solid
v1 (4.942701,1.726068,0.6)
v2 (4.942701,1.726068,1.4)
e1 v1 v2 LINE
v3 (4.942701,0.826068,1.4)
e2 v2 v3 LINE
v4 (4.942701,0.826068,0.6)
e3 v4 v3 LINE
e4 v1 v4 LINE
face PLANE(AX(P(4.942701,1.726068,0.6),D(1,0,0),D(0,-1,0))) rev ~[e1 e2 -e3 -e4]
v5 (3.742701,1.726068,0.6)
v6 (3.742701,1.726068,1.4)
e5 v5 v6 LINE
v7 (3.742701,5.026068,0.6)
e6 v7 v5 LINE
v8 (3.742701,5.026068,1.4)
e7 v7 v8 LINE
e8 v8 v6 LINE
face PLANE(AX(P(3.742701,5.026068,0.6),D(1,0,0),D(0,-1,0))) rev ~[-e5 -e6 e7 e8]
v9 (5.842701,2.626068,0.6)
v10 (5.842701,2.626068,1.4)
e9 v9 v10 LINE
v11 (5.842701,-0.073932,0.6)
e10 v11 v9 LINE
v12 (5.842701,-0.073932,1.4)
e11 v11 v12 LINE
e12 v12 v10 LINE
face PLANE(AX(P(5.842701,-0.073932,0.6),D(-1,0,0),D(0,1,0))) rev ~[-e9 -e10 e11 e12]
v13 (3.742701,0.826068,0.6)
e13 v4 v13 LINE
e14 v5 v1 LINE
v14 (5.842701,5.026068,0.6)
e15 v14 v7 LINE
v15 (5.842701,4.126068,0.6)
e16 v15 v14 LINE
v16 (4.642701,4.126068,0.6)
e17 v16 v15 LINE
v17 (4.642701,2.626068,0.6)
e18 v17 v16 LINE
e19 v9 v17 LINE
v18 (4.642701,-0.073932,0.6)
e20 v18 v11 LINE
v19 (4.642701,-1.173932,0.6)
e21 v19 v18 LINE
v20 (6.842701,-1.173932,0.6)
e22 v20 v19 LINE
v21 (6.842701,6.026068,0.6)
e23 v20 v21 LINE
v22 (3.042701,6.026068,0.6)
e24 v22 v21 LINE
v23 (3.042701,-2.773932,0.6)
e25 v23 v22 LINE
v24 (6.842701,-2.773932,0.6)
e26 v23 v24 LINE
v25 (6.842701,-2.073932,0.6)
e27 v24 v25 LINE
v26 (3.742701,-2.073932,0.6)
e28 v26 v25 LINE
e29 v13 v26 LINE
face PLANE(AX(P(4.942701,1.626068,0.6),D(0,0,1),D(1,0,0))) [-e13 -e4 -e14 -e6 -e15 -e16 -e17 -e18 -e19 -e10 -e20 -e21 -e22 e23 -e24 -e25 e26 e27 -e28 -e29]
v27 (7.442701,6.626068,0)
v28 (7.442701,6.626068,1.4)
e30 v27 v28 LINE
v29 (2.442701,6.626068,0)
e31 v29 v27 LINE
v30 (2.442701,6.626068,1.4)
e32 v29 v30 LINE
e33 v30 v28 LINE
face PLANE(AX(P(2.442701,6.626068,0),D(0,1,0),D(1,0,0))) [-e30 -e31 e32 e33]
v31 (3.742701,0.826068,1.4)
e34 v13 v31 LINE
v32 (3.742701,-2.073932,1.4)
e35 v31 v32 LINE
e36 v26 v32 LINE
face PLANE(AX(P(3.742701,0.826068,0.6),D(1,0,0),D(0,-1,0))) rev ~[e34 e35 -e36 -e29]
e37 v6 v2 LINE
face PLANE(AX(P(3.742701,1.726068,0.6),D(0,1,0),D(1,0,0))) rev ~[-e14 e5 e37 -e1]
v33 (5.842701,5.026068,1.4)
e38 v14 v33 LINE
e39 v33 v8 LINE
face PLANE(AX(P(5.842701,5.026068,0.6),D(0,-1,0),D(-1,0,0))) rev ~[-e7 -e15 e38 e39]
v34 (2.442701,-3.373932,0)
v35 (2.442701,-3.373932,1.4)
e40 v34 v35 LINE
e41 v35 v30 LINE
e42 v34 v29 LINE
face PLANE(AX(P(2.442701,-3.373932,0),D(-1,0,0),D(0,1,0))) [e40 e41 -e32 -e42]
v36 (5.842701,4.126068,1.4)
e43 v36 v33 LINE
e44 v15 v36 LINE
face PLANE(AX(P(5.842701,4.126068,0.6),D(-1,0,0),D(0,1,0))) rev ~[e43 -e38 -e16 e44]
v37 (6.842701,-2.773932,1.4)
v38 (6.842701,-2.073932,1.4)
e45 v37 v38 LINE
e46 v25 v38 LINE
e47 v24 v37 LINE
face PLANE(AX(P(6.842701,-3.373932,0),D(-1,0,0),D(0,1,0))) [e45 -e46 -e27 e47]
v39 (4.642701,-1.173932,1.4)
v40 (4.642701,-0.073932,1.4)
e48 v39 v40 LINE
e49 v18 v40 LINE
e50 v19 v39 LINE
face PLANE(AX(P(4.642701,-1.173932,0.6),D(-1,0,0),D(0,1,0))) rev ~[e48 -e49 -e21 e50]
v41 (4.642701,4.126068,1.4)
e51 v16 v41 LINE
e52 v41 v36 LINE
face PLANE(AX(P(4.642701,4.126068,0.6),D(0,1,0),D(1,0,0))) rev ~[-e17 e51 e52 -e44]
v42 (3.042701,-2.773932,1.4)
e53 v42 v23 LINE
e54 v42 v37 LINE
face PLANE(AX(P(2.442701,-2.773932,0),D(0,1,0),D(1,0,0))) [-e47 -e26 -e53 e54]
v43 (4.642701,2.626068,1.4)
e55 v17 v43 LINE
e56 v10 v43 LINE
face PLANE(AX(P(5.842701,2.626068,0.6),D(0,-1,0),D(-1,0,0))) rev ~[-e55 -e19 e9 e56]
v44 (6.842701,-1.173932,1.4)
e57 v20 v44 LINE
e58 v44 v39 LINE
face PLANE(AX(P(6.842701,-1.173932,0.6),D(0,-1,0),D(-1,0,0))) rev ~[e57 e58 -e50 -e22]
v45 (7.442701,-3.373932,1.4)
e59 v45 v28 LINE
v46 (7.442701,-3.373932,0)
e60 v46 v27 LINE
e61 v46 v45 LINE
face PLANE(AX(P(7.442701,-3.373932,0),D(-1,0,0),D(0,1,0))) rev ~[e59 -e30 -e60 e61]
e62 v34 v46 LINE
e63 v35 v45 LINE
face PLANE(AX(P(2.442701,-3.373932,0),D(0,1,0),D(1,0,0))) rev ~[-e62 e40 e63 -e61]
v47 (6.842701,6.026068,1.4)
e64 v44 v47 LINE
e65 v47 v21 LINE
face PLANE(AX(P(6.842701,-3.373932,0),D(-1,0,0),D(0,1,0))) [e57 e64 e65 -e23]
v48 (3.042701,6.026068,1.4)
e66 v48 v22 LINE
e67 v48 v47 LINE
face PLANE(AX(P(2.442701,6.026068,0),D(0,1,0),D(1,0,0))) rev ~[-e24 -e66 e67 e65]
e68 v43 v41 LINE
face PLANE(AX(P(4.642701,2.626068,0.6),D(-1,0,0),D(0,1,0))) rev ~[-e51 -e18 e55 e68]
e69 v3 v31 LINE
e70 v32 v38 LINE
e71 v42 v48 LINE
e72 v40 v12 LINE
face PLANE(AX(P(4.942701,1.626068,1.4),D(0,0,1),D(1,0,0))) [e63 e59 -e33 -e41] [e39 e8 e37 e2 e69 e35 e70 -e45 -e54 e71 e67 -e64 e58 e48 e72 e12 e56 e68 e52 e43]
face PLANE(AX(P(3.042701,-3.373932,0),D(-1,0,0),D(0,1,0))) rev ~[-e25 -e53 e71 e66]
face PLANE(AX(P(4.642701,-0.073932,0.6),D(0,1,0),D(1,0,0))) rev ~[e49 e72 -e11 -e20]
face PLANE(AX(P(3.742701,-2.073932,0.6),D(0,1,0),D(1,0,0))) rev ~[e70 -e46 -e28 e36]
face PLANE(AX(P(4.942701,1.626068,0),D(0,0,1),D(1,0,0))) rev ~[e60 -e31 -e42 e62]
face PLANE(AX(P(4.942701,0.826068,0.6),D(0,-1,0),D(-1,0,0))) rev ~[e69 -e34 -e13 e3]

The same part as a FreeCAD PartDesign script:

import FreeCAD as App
import Part
import Sketcher
from FreeCAD import Vector


def faces_at(feature, points):
    """Names of the faces that lie closest to the given points."""
    faces = feature.Shape.Faces
    near = lambda p: min(range(len(faces)), key=lambda i: faces[i].distToShape(Part.Vertex(*p))[0])
    return sorted({f"Face{near(p) + 1}" for p in points})


def add_polygon(sketch, points):
    """Adds a closed chain of lines whose ends are joined by coincident constraints."""
    first, n = sketch.GeometryCount, len(points)
    for a, b in zip(points, points[1:] + points[:1]):
        sketch.addGeometry(Part.LineSegment(App.Vector(*a, 0), App.Vector(*b, 0)), False)
    for i in range(n):
        sketch.addConstraint(Sketcher.Constraint("Coincident", first + i, 2, first + (i + 1) % n, 1))

doc = App.newDocument("Part")
body = doc.addObject("PartDesign::Body", "Body")

sketch1 = body.newObject("Sketcher::SketchObject", "Sketch")
sketch1.AttachmentSupport = (doc.getObject("XY_Plane"), [""])
sketch1.MapMode = "FlatFace"
add_polygon(sketch1, [(2, 7), (2, -3), (7, -3), (7, 7)])
sketch1.addConstraint(Sketcher.Constraint("Vertical", 0))
sketch1.addConstraint(Sketcher.Constraint("Horizontal", 1))
sketch1.addConstraint(Sketcher.Constraint("Vertical", 2))
sketch1.addConstraint(Sketcher.Constraint("Horizontal", 3))
sketch1.addConstraint(Sketcher.Constraint("DistanceX", 1, 1, 1, 2, 5.0))
sketch1.addConstraint(Sketcher.Constraint("DistanceY", 0, 2, 0, 1, 10.0))
sketch1.addConstraint(Sketcher.Constraint("DistanceX", -1, 1, 0, 2, 2.442701))
sketch1.addConstraint(Sketcher.Constraint("DistanceY", 0, 2, -1, 1, 3.373932))
pad1 = body.newObject("PartDesign::Pad", "Pad")
pad1.Profile = sketch1
pad1.Length = 1.4
doc.recompute()

thickness = body.newObject("PartDesign::Thickness", "Thickness")
thickness.Base = (pad1, faces_at(pad1, [(4.943, 1.626, 1.4)]))
thickness.Value = 0.6
thickness.Reversed = True
thickness.Join = "Arc"

sketch2 = body.newObject("Sketcher::SketchObject", "Sketch001")
sketch2.AttachmentSupport = (doc.getObject("XY_Plane"), [""])
sketch2.MapMode = "FlatFace"
sketch2.AttachmentOffset = App.Placement(Vector(0, 0, 0.6), App.Rotation())
add_polygon(sketch2, [(6.8, -2.1), (6.8, -1.2), (4.6, -1.2), (4.6, -0.1), (5.8, -0.1), (5.8, 2.6), (4.6, 2.6), (4.6, 4.1), (5.8, 4.1), (5.8, 5), (3.7, 5), (3.7, 1.7), (4.9, 1.7), (4.9, 0.8), (3.7, 0.8), (3.7, -2.1)])
sketch2.addConstraint(Sketcher.Constraint("Vertical", 0))
sketch2.addConstraint(Sketcher.Constraint("Horizontal", 1))
sketch2.addConstraint(Sketcher.Constraint("Vertical", 2))
sketch2.addConstraint(Sketcher.Constraint("Horizontal", 3))
sketch2.addConstraint(Sketcher.Constraint("Vertical", 4))
sketch2.addConstraint(Sketcher.Constraint("Horizontal", 5))
sketch2.addConstraint(Sketcher.Constraint("Vertical", 6))
sketch2.addConstraint(Sketcher.Constraint("Horizontal", 7))
sketch2.addConstraint(Sketcher.Constraint("Vertical", 8))
sketch2.addConstraint(Sketcher.Constraint("Horizontal", 9))
sketch2.addConstraint(Sketcher.Constraint("Vertical", 10))
sketch2.addConstraint(Sketcher.Constraint("Horizontal", 11))
sketch2.addConstraint(Sketcher.Constraint("Vertical", 12))
sketch2.addConstraint(Sketcher.Constraint("Horizontal", 13))
sketch2.addConstraint(Sketcher.Constraint("Vertical", 14))
sketch2.addConstraint(Sketcher.Constraint("Horizontal", 15))
sketch2.addConstraint(Sketcher.Constraint("Vertical", 2, 2, 5, 2))
sketch2.addConstraint(Sketcher.Constraint("Vertical", 4, 2, 7, 2))
sketch2.addConstraint(Sketcher.Constraint("Vertical", 10, 2, 13, 2))
sketch2.addConstraint(Sketcher.Constraint("Equal", 7, 11))
sketch2.addConstraint(Sketcher.Constraint("Equal", 0, 8))
sketch2.addConstraint(Sketcher.Constraint("Equal", 8, 12))
sketch2.addConstraint(Sketcher.Constraint("DistanceX", 1, 2, 1, 1, 2.2))
sketch2.addConstraint(Sketcher.Constraint("DistanceX", 3, 1, 3, 2, 1.2))
sketch2.addConstraint(Sketcher.Constraint("DistanceX", 9, 2, 9, 1, 2.1))
sketch2.addConstraint(Sketcher.Constraint("DistanceY", 0, 1, 0, 2, 0.9))
sketch2.addConstraint(Sketcher.Constraint("DistanceY", 2, 1, 2, 2, 1.1))
sketch2.addConstraint(Sketcher.Constraint("DistanceY", 4, 1, 4, 2, 2.7))
sketch2.addConstraint(Sketcher.Constraint("DistanceY", 6, 1, 6, 2, 1.5))
sketch2.addConstraint(Sketcher.Constraint("DistanceY", 10, 2, 10, 1, 3.3))
sketch2.addConstraint(Sketcher.Constraint("DistanceX", -1, 1, 0, 2, 6.842701))
sketch2.addConstraint(Sketcher.Constraint("DistanceY", 0, 2, -1, 1, 1.173932))
pad2 = body.newObject("PartDesign::Pad", "Pad001")
pad2.Profile = sketch2
pad2.Length = 0.8

doc.recompute()
